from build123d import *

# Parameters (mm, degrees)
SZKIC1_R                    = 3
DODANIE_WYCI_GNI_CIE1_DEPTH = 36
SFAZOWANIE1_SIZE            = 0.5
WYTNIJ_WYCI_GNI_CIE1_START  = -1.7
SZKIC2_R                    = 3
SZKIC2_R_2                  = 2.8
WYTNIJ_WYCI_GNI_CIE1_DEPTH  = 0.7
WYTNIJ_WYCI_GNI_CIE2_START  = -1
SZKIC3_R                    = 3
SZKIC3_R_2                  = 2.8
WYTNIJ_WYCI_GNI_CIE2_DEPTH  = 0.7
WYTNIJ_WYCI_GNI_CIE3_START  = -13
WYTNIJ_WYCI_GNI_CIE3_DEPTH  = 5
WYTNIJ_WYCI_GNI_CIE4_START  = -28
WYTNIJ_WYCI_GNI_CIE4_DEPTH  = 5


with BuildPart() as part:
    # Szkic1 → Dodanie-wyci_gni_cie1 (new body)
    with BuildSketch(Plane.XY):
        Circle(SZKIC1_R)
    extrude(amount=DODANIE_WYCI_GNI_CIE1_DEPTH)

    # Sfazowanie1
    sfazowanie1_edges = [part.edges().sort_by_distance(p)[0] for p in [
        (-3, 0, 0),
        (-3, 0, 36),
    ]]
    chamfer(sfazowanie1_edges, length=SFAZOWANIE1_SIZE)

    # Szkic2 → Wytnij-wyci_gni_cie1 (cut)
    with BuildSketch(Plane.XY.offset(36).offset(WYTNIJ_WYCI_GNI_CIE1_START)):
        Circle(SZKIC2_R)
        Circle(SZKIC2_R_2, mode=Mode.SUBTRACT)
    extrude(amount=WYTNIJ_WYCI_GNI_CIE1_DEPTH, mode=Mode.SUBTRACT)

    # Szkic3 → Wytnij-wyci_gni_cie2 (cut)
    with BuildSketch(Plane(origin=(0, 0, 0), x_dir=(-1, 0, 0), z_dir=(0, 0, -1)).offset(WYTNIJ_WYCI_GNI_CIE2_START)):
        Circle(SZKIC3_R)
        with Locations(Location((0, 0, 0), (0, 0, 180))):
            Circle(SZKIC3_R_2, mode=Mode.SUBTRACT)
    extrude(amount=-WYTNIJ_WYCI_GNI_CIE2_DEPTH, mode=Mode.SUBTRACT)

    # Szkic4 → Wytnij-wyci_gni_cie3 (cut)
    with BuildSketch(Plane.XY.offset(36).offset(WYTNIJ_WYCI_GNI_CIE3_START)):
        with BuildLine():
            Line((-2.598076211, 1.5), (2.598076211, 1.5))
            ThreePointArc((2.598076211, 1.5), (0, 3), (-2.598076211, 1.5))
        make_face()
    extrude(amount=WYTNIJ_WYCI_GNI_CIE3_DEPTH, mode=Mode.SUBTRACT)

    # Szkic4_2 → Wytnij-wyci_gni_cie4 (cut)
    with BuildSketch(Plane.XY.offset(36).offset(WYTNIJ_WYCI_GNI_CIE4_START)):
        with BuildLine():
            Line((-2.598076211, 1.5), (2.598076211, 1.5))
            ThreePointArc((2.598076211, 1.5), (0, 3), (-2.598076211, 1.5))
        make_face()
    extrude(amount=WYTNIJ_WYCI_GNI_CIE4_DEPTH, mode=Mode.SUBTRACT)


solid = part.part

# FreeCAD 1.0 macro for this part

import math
import FreeCAD as App
import Part
import Sketcher
Q = App.Units.Quantity


def edges_at(feature, points):
    """Names of the edges that pass closest to the given points."""
    edges = feature.Shape.Edges
    near = lambda p: min(range(len(edges)), key=lambda i: edges[i].distToShape(Part.Vertex(*p))[0])
    return sorted({f"Edge{near(p) + 1}" for p in points})

doc = App.newDocument("Part")
body = doc.addObject("PartDesign::Body", "Body")

sketch1 = body.newObject("Sketcher::SketchObject", "Sketch")
sketch1.AttachmentSupport = (doc.getObject("XY_Plane"), [""])
sketch1.MapMode = "FlatFace"
sketch1.addGeometry(Part.Circle(App.Vector(0, 0, 0), App.Vector(0, 0, 1), 3), False)
sketch1.addConstraint([
    Sketcher.Constraint("Coincident", 0, 3, -1, 1),
    Sketcher.Constraint("Diameter", 0, Q("6 mm")),
])
pad1 = body.newObject("PartDesign::Pad", "Pad")
pad1.Profile = sketch1
pad1.Length = 36
doc.recompute()

chamfer = body.newObject("PartDesign::Chamfer", "Chamfer")
chamfer.Base = (pad1, edges_at(pad1, [(-3, 0, 0), (-3, 0, 36)]))
chamfer.Size = 0.5

sketch2 = body.newObject("Sketcher::SketchObject", "Sketch001")
sketch2.AttachmentSupport = (doc.getObject("XY_Plane"), [""])
sketch2.MapMode = "FlatFace"
sketch2.AttachmentOffset = App.Placement(App.Vector(0, 0, 34.3), App.Rotation())
sketch2.addGeometry([
    Part.Circle(App.Vector(0, 0, 0), App.Vector(0, 0, 1), 3),
    Part.Circle(App.Vector(0, 0, 0), App.Vector(0, 0, 1), 2.8),
], False)
sketch2.addConstraint([
    Sketcher.Constraint("Coincident", 0, 3, -1, 1),
    Sketcher.Constraint("Coincident", 1, 3, -1, 1),
    Sketcher.Constraint("Diameter", 0, Q("6 mm")),
    Sketcher.Constraint("Diameter", 1, Q("5.6 mm")),
])
pocket1 = body.newObject("PartDesign::Pocket", "Pocket")
pocket1.Profile = sketch2
pocket1.Length = 0.7
pocket1.Reversed = True

sketch3 = body.newObject("Sketcher::SketchObject", "Sketch002")
sketch3.AttachmentSupport = (doc.getObject("XY_Plane"), [""])
sketch3.MapMode = "FlatFace"
sketch3.AttachmentOffset = App.Placement(App.Vector(0, 0, 1), App.Rotation())
sketch3.addGeometry([
    Part.Circle(App.Vector(0, 0, 0), App.Vector(0, 0, 1), 3),
    Part.Circle(App.Vector(0, 0, 0), App.Vector(0, 0, 1), 2.8),
], False)
sketch3.addConstraint([
    Sketcher.Constraint("Coincident", 0, 3, -1, 1),
    Sketcher.Constraint("Coincident", 1, 3, -1, 1),
    Sketcher.Constraint("Diameter", 0, Q("6 mm")),
    Sketcher.Constraint("Diameter", 1, Q("5.6 mm")),
])
pocket2 = body.newObject("PartDesign::Pocket", "Pocket001")
pocket2.Profile = sketch3
pocket2.Length = 0.7
pocket2.Reversed = True

sketch4 = body.newObject("Sketcher::SketchObject", "Sketch003")
sketch4.AttachmentSupport = (doc.getObject("XY_Plane"), [""])
sketch4.MapMode = "FlatFace"
sketch4.AttachmentOffset = App.Placement(App.Vector(0, 0, 23), App.Rotation())
sketch4.addGeometry([
    Part.LineSegment(App.Vector(-2.598076, 1.5, 0), App.Vector(2.598076, 1.5, 0)),
    Part.ArcOfCircle(Part.Circle(App.Vector(0, 0, 0), App.Vector(0, 0, 1), 3), math.radians(30), math.radians(150)),
], False)
sketch4.addConstraint([
    Sketcher.Constraint("Coincident", 0, 1, 1, 2),
    Sketcher.Constraint("Coincident", 1, 1, 0, 2),
    Sketcher.Constraint("Horizontal", 0),
    Sketcher.Constraint("Coincident", 1, 3, -1, 1),
    Sketcher.Constraint("Radius", 1, Q("3 mm")),
    Sketcher.Constraint("DistanceY", -1, 1, 0, 1, Q("1.5 mm")),
])
pocket3 = body.newObject("PartDesign::Pocket", "Pocket002")
pocket3.Profile = sketch4
pocket3.Length = 5
pocket3.Reversed = True

sketch5 = body.newObject("Sketcher::SketchObject", "Sketch004")
sketch5.AttachmentSupport = (doc.getObject("XY_Plane"), [""])
sketch5.MapMode = "FlatFace"
sketch5.AttachmentOffset = App.Placement(App.Vector(0, 0, 8), App.Rotation())
sketch5.addGeometry([
    Part.LineSegment(App.Vector(-2.598076, 1.5, 0), App.Vector(2.598076, 1.5, 0)),
    Part.ArcOfCircle(Part.Circle(App.Vector(0, 0, 0), App.Vector(0, 0, 1), 3), math.radians(30), math.radians(150)),
], False)
sketch5.addConstraint([
    Sketcher.Constraint("Coincident", 0, 1, 1, 2),
    Sketcher.Constraint("Coincident", 1, 1, 0, 2),
    Sketcher.Constraint("Horizontal", 0),
    Sketcher.Constraint("Coincident", 1, 3, -1, 1),
    Sketcher.Constraint("Radius", 1, Q("3 mm")),
    Sketcher.Constraint("DistanceY", -1, 1, 0, 1, Q("1.5 mm")),
])
pocket4 = body.newObject("PartDesign::Pocket", "Pocket003")
pocket4.Profile = sketch5
pocket4.Length = 5
pocket4.Reversed = True

doc.recompute()
